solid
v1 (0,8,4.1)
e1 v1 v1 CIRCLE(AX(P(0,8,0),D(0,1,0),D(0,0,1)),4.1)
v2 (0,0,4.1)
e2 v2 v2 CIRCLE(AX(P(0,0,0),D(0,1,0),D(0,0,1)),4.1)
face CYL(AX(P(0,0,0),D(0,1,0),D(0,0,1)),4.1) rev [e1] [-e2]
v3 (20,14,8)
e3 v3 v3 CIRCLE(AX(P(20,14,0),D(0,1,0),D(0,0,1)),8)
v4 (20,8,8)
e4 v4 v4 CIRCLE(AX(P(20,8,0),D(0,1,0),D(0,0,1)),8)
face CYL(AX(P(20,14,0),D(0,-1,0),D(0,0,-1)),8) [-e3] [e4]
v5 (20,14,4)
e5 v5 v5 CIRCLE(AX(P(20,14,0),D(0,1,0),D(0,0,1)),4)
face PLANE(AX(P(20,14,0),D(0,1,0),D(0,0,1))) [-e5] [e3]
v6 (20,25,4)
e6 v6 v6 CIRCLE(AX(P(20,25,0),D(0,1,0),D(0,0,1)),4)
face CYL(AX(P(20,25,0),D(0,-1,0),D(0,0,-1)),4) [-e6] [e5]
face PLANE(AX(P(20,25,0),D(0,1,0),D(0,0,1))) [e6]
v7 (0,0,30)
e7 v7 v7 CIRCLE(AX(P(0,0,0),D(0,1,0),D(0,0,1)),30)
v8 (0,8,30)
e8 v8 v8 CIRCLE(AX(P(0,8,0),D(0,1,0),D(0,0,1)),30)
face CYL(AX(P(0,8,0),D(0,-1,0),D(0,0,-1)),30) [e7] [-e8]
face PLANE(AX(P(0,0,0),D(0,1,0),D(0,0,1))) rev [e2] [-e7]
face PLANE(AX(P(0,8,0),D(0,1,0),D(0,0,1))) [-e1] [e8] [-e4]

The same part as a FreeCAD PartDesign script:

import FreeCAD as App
import Part
import Sketcher

V = App.Vector

doc = App.newDocument("Part")
body = doc.addObject("PartDesign::Body", "Body")

sketch1 = body.newObject("Sketcher::SketchObject", "Sketch")
sketch1.AttachmentSupport = (doc.getObject("XZ_Plane"), [""])
sketch1.MapMode = "FlatFace"
sketch1.addGeometry(Part.Circle(V(0, 0, 0), V(0, 0, 1), 30), False)
sketch1.addConstraint(Sketcher.Constraint("Coincident", 0, 3, -1, 1))
sketch1.addConstraint(Sketcher.Constraint("Diameter", 0, 60.0))
pad1 = body.newObject("PartDesign::Pad", "Pad")
pad1.Profile = sketch1
pad1.Length = 8
pad1.Reversed = True

sketch2 = body.newObject("Sketcher::SketchObject", "Sketch001")
sketch2.AttachmentSupport = (doc.getObject("XZ_Plane"), [""])
sketch2.MapMode = "FlatFace"
sketch2.AttachmentOffset = App.Placement(V(0, 0, -8), App.Rotation())
sketch2.addGeometry(Part.Circle(V(0, 0, 0), V(0, 0, 1), 4.1), False)
sketch2.addConstraint(Sketcher.Constraint("Coincident", 0, 3, -1, 1))
sketch2.addConstraint(Sketcher.Constraint("Diameter", 0, 8.2))
pocket1 = body.newObject("PartDesign::Pocket", "Pocket")
pocket1.Profile = sketch2
pocket1.Type = "ThroughAll"
pocket1.Reversed = True

sketch3 = body.newObject("Sketcher::SketchObject", "Sketch002")
sketch3.AttachmentSupport = (doc.getObject("XZ_Plane"), [""])
sketch3.MapMode = "FlatFace"
sketch3.AttachmentOffset = App.Placement(V(0, 0, -8), App.Rotation())
sketch3.addGeometry(Part.Circle(V(20, 0, 0), V(0, 0, 1), 8), False)
sketch3.addConstraint(Sketcher.Constraint("PointOnObject", 0, 3, -1))
sketch3.addConstraint(Sketcher.Constraint("Diameter", 0, 16.0))
sketch3.addConstraint(Sketcher.Constraint("DistanceX", -1, 1, 0, 3, 20.0))
pad2 = body.newObject("PartDesign::Pad", "Pad001")
pad2.Profile = sketch3
pad2.Length = 6
pad2.Reversed = True

sketch4 = body.newObject("Sketcher::SketchObject", "Sketch003")
sketch4.AttachmentSupport = (doc.getObject("XZ_Plane"), [""])
sketch4.MapMode = "FlatFace"
sketch4.AttachmentOffset = App.Placement(V(0, 0, -14), App.Rotation())
sketch4.addGeometry(Part.Circle(V(20, 0, 0), V(0, 0, 1), 4), False)
sketch4.addConstraint(Sketcher.Constraint("PointOnObject", 0, 3, -1))
sketch4.addConstraint(Sketcher.Constraint("Diameter", 0, 8.0))
sketch4.addConstraint(Sketcher.Constraint("DistanceX", -1, 1, 0, 3, 20.0))
pad3 = body.newObject("PartDesign::Pad", "Pad002")
pad3.Profile = sketch4
pad3.Length = 11
pad3.Reversed = True

doc.recompute()
